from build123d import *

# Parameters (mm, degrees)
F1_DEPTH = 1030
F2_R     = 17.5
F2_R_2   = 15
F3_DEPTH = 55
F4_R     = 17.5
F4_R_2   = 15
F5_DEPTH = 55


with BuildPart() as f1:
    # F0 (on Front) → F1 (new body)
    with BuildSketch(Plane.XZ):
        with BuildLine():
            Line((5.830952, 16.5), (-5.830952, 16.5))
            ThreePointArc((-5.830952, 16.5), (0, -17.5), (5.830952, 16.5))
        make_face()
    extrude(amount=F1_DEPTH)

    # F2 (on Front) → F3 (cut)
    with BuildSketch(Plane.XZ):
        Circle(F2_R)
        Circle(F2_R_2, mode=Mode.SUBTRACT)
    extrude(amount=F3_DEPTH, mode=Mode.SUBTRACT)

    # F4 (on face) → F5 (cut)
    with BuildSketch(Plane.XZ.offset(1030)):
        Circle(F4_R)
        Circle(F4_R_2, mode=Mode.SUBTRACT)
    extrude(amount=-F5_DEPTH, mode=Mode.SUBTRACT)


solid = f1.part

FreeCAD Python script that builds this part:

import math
import FreeCAD as App
import Part
import Sketcher

V = App.Vector
Q = App.Units.Quantity

doc = App.newDocument("Part")
body = doc.addObject("PartDesign::Body", "Body")

sketch1 = doc.addObject("Sketcher::SketchObject", "Sketch")
body.addObject(sketch1)
sketch1.AttachmentSupport = (doc.XZ_Plane, [""])
sketch1.MapMode = "FlatFace"
sketch1.addGeometry([
    Part.LineSegment(V(6, 16, 0), V(-6, 16, 0)),
    Part.ArcOfCircle(Part.Circle(V(0, 0, 0), V(0, 0, 1), 18), math.radians(109), math.radians(431)),
], False)
sketch1.addConstraint([
    Sketcher.Constraint("Coincident", 0, 1, 1, 2),
    Sketcher.Constraint("Coincident", 1, 1, 0, 2),
    Sketcher.Constraint("Horizontal", 0),
    Sketcher.Constraint("Coincident", 1, 3, -1, 1),
    Sketcher.Constraint("Radius", 1, Q("17.5 mm")),
    Sketcher.Constraint("DistanceY", -1, 1, 0, 1, Q("16.5 mm")),
])
pad1 = doc.addObject("PartDesign::Pad", "Pad")
body.addObject(pad1)
pad1.Profile = sketch1
pad1.Length = 1030

sketch2 = doc.addObject("Sketcher::SketchObject", "Sketch001")
body.addObject(sketch2)
sketch2.AttachmentSupport = (doc.XZ_Plane, [""])
sketch2.MapMode = "FlatFace"
sketch2.addGeometry([
    Part.Circle(V(0, 0, 0), V(0, 0, 1), 18),
    Part.Circle(V(0, 0, 0), V(0, 0, 1), 15),
], False)
sketch2.addConstraint([
    Sketcher.Constraint("Coincident", 0, 3, -1, 1),
    Sketcher.Constraint("Coincident", 1, 3, -1, 1),
    Sketcher.Constraint("Diameter", 0, Q("35 mm")),
    Sketcher.Constraint("Diameter", 1, Q("30 mm")),
])
pocket1 = doc.addObject("PartDesign::Pocket", "Pocket")
body.addObject(pocket1)
pocket1.Profile = sketch2
pocket1.Length = 55
pocket1.Reversed = True

sketch3 = doc.addObject("Sketcher::SketchObject", "Sketch002")
body.addObject(sketch3)
sketch3.AttachmentSupport = (doc.XZ_Plane, [""])
sketch3.MapMode = "FlatFace"
sketch3.AttachmentOffset = App.Placement(V(0, 0, 1030), App.Rotation())
sketch3.addGeometry([
    Part.Circle(V(0, 0, 0), V(0, 0, 1), 18),
    Part.Circle(V(0, 0, 0), V(0, 0, 1), 15),
], False)
sketch3.addConstraint([
    Sketcher.Constraint("Coincident", 0, 3, -1, 1),
    Sketcher.Constraint("Coincident", 1, 3, -1, 1),
    Sketcher.Constraint("Diameter", 0, Q("35 mm")),
    Sketcher.Constraint("Diameter", 1, Q("30 mm")),
])
pocket2 = doc.addObject("PartDesign::Pocket", "Pocket001")
body.addObject(pocket2)
pocket2.Profile = sketch3
pocket2.Length = 55

doc.recompute()
